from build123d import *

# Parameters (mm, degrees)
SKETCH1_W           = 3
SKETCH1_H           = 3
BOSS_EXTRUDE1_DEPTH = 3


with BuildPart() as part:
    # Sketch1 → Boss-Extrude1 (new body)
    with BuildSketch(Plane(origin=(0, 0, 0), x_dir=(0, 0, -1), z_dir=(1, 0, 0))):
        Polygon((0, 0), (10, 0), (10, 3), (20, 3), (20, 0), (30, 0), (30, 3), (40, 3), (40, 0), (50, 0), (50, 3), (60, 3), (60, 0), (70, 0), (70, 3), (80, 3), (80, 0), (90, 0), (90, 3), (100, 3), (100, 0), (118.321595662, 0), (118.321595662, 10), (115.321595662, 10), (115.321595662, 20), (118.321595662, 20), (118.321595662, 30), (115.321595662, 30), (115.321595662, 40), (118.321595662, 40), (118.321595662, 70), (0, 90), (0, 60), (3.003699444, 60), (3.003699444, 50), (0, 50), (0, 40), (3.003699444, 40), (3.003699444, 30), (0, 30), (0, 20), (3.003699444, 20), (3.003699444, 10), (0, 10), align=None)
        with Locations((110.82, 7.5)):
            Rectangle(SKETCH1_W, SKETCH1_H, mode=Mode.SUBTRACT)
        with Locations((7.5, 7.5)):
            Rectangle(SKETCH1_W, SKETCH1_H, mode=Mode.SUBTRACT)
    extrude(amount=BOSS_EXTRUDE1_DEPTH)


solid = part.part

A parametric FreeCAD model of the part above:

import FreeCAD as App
import Part
import Sketcher

V = App.Vector

doc = App.newDocument("Part")
body = doc.addObject("PartDesign::Body", "Body")

# Sketch on YZ plane
sketch1 = body.newObject("Sketcher::SketchObject", "Sketch")
sketch1.AttachmentSupport = (doc.getObject("YZ_Plane"), [""])
sketch1.MapMode = "FlatFace"
sketch1.addGeometry([
    Part.LineSegment(V(0, 0, 0), V(0, -10, 0)),  # 0
    Part.LineSegment(V(0, -10, 0), V(3, -10, 0)),  # 1
    Part.LineSegment(V(3, -10, 0), V(3, -20, 0)),  # 2
    Part.LineSegment(V(3, -20, 0), V(0, -20, 0)),  # 3
    Part.LineSegment(V(0, -20, 0), V(0, -30, 0)),  # 4
    Part.LineSegment(V(0, -30, 0), V(3, -30, 0)),  # 5
    Part.LineSegment(V(3, -30, 0), V(3, -40, 0)),  # 6
    Part.LineSegment(V(3, -40, 0), V(0, -40, 0)),  # 7
    Part.LineSegment(V(0, -40, 0), V(0, -50, 0)),  # 8
    Part.LineSegment(V(0, -50, 0), V(3, -50, 0)),  # 9
    Part.LineSegment(V(3, -50, 0), V(3, -60, 0)),  # 10
    Part.LineSegment(V(3, -60, 0), V(0, -60, 0)),  # 11
    Part.LineSegment(V(0, -60, 0), V(0, -70, 0)),  # 12
    Part.LineSegment(V(0, -70, 0), V(3, -70, 0)),  # 13
    Part.LineSegment(V(3, -70, 0), V(3, -80, 0)),  # 14
    Part.LineSegment(V(3, -80, 0), V(0, -80, 0)),  # 15
    Part.LineSegment(V(0, -80, 0), V(0, -90, 0)),  # 16
    Part.LineSegment(V(0, -90, 0), V(3, -90, 0)),  # 17
    Part.LineSegment(V(3, -90, 0), V(3, -100, 0)),  # 18
    Part.LineSegment(V(3, -100, 0), V(0, -100, 0)),  # 19
    Part.LineSegment(V(0, -100, 0), V(0, -118.3, 0)),  # 20
    Part.LineSegment(V(0, -118.3, 0), V(10, -118.3, 0)),  # 21
    Part.LineSegment(V(10, -118.3, 0), V(10, -115.3, 0)),  # 22
    Part.LineSegment(V(10, -115.3, 0), V(20, -115.3, 0)),  # 23
    Part.LineSegment(V(20, -115.3, 0), V(20, -118.3, 0)),  # 24
    Part.LineSegment(V(20, -118.3, 0), V(30, -118.3, 0)),  # 25
    Part.LineSegment(V(30, -118.3, 0), V(30, -115.3, 0)),  # 26
    Part.LineSegment(V(30, -115.3, 0), V(40, -115.3, 0)),  # 27
    Part.LineSegment(V(40, -115.3, 0), V(40, -118.3, 0)),  # 28
    Part.LineSegment(V(40, -118.3, 0), V(70, -118.3, 0)),  # 29
    Part.LineSegment(V(70, -118.3, 0), V(90, 0, 0)),  # 30
    Part.LineSegment(V(90, 0, 0), V(60, 0, 0)),  # 31
    Part.LineSegment(V(60, 0, 0), V(60, -3, 0)),  # 32
    Part.LineSegment(V(60, -3, 0), V(50, -3, 0)),  # 33
    Part.LineSegment(V(50, -3, 0), V(50, 0, 0)),  # 34
    Part.LineSegment(V(50, 0, 0), V(40, 0, 0)),  # 35
    Part.LineSegment(V(40, 0, 0), V(40, -3, 0)),  # 36
    Part.LineSegment(V(40, -3, 0), V(30, -3, 0)),  # 37
    Part.LineSegment(V(30, -3, 0), V(30, 0, 0)),  # 38
    Part.LineSegment(V(30, 0, 0), V(20, 0, 0)),  # 39
    Part.LineSegment(V(20, 0, 0), V(20, -3, 0)),  # 40
    Part.LineSegment(V(20, -3, 0), V(10, -3, 0)),  # 41
    Part.LineSegment(V(10, -3, 0), V(10, 0, 0)),  # 42
    Part.LineSegment(V(10, 0, 0), V(0, 0, 0)),  # 43
    Part.LineSegment(V(6, -9, 0), V(6, -6, 0)),  # 44
    Part.LineSegment(V(6, -6, 0), V(9, -6, 0)),  # 45
    Part.LineSegment(V(9, -6, 0), V(9, -9, 0)),  # 46
    Part.LineSegment(V(9, -9, 0), V(6, -9, 0)),  # 47
    Part.LineSegment(V(6, -112.3, 0), V(6, -109.3, 0)),  # 48
    Part.LineSegment(V(6, -109.3, 0), V(9, -109.3, 0)),  # 49
    Part.LineSegment(V(9, -109.3, 0), V(9, -112.3, 0)),  # 50
    Part.LineSegment(V(9, -112.3, 0), V(6, -112.3, 0)),  # 51
], False)
sketch1.addConstraint([
    Sketcher.Constraint("Coincident", 0, 2, 1, 1),
    Sketcher.Constraint("Coincident", 1, 2, 2, 1),
    Sketcher.Constraint("Coincident", 2, 2, 3, 1),
    Sketcher.Constraint("Coincident", 3, 2, 4, 1),
    Sketcher.Constraint("Coincident", 4, 2, 5, 1),
    Sketcher.Constraint("Coincident", 5, 2, 6, 1),
    Sketcher.Constraint("Coincident", 6, 2, 7, 1),
    Sketcher.Constraint("Coincident", 7, 2, 8, 1),
    Sketcher.Constraint("Coincident", 8, 2, 9, 1),
    Sketcher.Constraint("Coincident", 9, 2, 10, 1),
    Sketcher.Constraint("Coincident", 10, 2, 11, 1),
    Sketcher.Constraint("Coincident", 11, 2, 12, 1),
    Sketcher.Constraint("Coincident", 12, 2, 13, 1),
    Sketcher.Constraint("Coincident", 13, 2, 14, 1),
    Sketcher.Constraint("Coincident", 14, 2, 15, 1),
    Sketcher.Constraint("Coincident", 15, 2, 16, 1),
    Sketcher.Constraint("Coincident", 16, 2, 17, 1),
    Sketcher.Constraint("Coincident", 17, 2, 18, 1),
    Sketcher.Constraint("Coincident", 18, 2, 19, 1),
    Sketcher.Constraint("Coincident", 19, 2, 20, 1),
    Sketcher.Constraint("Coincident", 20, 2, 21, 1),
    Sketcher.Constraint("Coincident", 21, 2, 22, 1),
    Sketcher.Constraint("Coincident", 22, 2, 23, 1),
    Sketcher.Constraint("Coincident", 23, 2, 24, 1),
    Sketcher.Constraint("Coincident", 24, 2, 25, 1),
    Sketcher.Constraint("Coincident", 25, 2, 26, 1),
    Sketcher.Constraint("Coincident", 26, 2, 27, 1),
    Sketcher.Constraint("Coincident", 27, 2, 28, 1),
    Sketcher.Constraint("Coincident", 28, 2, 29, 1),
    Sketcher.Constraint("Coincident", 29, 2, 30, 1),
    Sketcher.Constraint("Coincident", 30, 2, 31, 1),
    Sketcher.Constraint("Coincident", 31, 2, 32, 1),
    Sketcher.Constraint("Coincident", 32, 2, 33, 1),
    Sketcher.Constraint("Coincident", 33, 2, 34, 1),
    Sketcher.Constraint("Coincident", 34, 2, 35, 1),
    Sketcher.Constraint("Coincident", 35, 2, 36, 1),
    Sketcher.Constraint("Coincident", 36, 2, 37, 1),
    Sketcher.Constraint("Coincident", 37, 2, 38, 1),
    Sketcher.Constraint("Coincident", 38, 2, 39, 1),
    Sketcher.Constraint("Coincident", 39, 2, 40, 1),
    Sketcher.Constraint("Coincident", 40, 2, 41, 1),
    Sketcher.Constraint("Coincident", 41, 2, 42, 1),
    Sketcher.Constraint("Coincident", 42, 2, 43, 1),
    Sketcher.Constraint("Coincident", 43, 2, 0, 1),
    Sketcher.Constraint("Coincident", 44, 2, 45, 1),
    Sketcher.Constraint("Coincident", 45, 2, 46, 1),
    Sketcher.Constraint("Coincident", 46, 2, 47, 1),
    Sketcher.Constraint("Coincident", 47, 2, 44, 1),
    Sketcher.Constraint("Coincident", 48, 2, 49, 1),
    Sketcher.Constraint("Coincident", 49, 2, 50, 1),
    Sketcher.Constraint("Coincident", 50, 2, 51, 1),
    Sketcher.Constraint("Coincident", 51, 2, 48, 1),
    Sketcher.Constraint("Vertical", 0),
    Sketcher.Constraint("Horizontal", 1),
    Sketcher.Constraint("Vertical", 2),
    Sketcher.Constraint("Horizontal", 3),
    Sketcher.Constraint("Vertical", 4),
    Sketcher.Constraint("Horizontal", 5),
    Sketcher.Constraint("Vertical", 6),
    Sketcher.Constraint("Horizontal", 7),
    Sketcher.Constraint("Vertical", 8),
    Sketcher.Constraint("Horizontal", 9),
    Sketcher.Constraint("Vertical", 10),
    Sketcher.Constraint("Horizontal", 11),
    Sketcher.Constraint("Vertical", 12),
    Sketcher.Constraint("Horizontal", 13),
    Sketcher.Constraint("Vertical", 14),
    Sketcher.Constraint("Horizontal", 15),
    Sketcher.Constraint("Vertical", 16),
    Sketcher.Constraint("Horizontal", 17),
    Sketcher.Constraint("Vertical", 18),
    Sketcher.Constraint("Horizontal", 19),
    Sketcher.Constraint("Vertical", 20),
    Sketcher.Constraint("Horizontal", 21),
    Sketcher.Constraint("Vertical", 22),
    Sketcher.Constraint("Horizontal", 23),
    Sketcher.Constraint("Vertical", 24),
    Sketcher.Constraint("Horizontal", 25),
    Sketcher.Constraint("Vertical", 26),
    Sketcher.Constraint("Horizontal", 27),
    Sketcher.Constraint("Vertical", 28),
    Sketcher.Constraint("Horizontal", 29),
    Sketcher.Constraint("Horizontal", 31),
    Sketcher.Constraint("Vertical", 32),
    Sketcher.Constraint("Horizontal", 33),
    Sketcher.Constraint("Vertical", 34),
    Sketcher.Constraint("Horizontal", 35),
    Sketcher.Constraint("Vertical", 36),
    Sketcher.Constraint("Horizontal", 37),
    Sketcher.Constraint("Vertical", 38),
    Sketcher.Constraint("Horizontal", 39),
    Sketcher.Constraint("Vertical", 40),
    Sketcher.Constraint("Horizontal", 41),
    Sketcher.Constraint("Vertical", 42),
    Sketcher.Constraint("Horizontal", 43),
    Sketcher.Constraint("Vertical", 44),
    Sketcher.Constraint("Horizontal", 45),
    Sketcher.Constraint("Vertical", 46),
    Sketcher.Constraint("Horizontal", 47),
    Sketcher.Constraint("Vertical", 48),
    Sketcher.Constraint("Horizontal", 49),
    Sketcher.Constraint("Vertical", 50),
    Sketcher.Constraint("Horizontal", 51),
    Sketcher.Constraint("Coincident", 43, 2, -1, 1),
    Sketcher.Constraint("PointOnObject", 3, 2, -2),
    Sketcher.Constraint("PointOnObject", 7, 2, -2),
    Sketcher.Constraint("PointOnObject", 11, 2, -2),
    Sketcher.Constraint("PointOnObject", 15, 2, -2),
    Sketcher.Constraint("PointOnObject", 19, 2, -2),
    Sketcher.Constraint("PointOnObject", 30, 2, -1),
    Sketcher.Constraint("PointOnObject", 34, 2, -1),
    Sketcher.Constraint("PointOnObject", 38, 2, -1),
    Sketcher.Constraint("Horizontal", 21, 2, 24, 2),
    Sketcher.Constraint("Horizontal", 23, 2, 26, 2),
    Sketcher.Constraint("Horizontal", 25, 2, 28, 2),
    Sketcher.Constraint("Horizontal", 33, 2, 36, 2),
    Sketcher.Constraint("Horizontal", 37, 2, 40, 2),
    Sketcher.Constraint("Vertical", 2, 2, 5, 2),
    Sketcher.Constraint("Vertical", 6, 2, 9, 2),
    Sketcher.Constraint("Vertical", 10, 2, 13, 2),
    Sketcher.Constraint("Vertical", 14, 2, 17, 2),
    Sketcher.Constraint("Vertical", 28, 2, 35, 2),
    Sketcher.Constraint("Vertical", 26, 2, 37, 2),
    Sketcher.Constraint("Vertical", 24, 2, 39, 2),
    Sketcher.Constraint("Vertical", 22, 2, 41, 2),
    Sketcher.Constraint("Vertical", 47, 2, 48, 2),
    Sketcher.Constraint("Vertical", 46, 2, 49, 2),
    Sketcher.Constraint("Equal", 21, 23),
    Sketcher.Constraint("Equal", 23, 25),
    Sketcher.Constraint("Equal", 25, 27),
    Sketcher.Constraint("Equal", 29, 31),
    Sketcher.Constraint("Equal", 27, 33),
    Sketcher.Constraint("Equal", 33, 35),
    Sketcher.Constraint("Equal", 19, 45),
    Sketcher.Constraint("Equal", 43, 0),
    Sketcher.Constraint("Equal", 0, 2),
    Sketcher.Constraint("Equal", 2, 4),
    Sketcher.Constraint("Equal", 4, 6),
    Sketcher.Constraint("Equal", 6, 8),
    Sketcher.Constraint("Equal", 8, 10),
    Sketcher.Constraint("Equal", 10, 12),
    Sketcher.Constraint("Equal", 12, 14),
    Sketcher.Constraint("Equal", 14, 16),
    Sketcher.Constraint("Equal", 16, 18),
    Sketcher.Constraint("Equal", 51, 22),
    Sketcher.Constraint("Equal", 28, 44),
    Sketcher.Constraint("Equal", 46, 48),
    Sketcher.Constraint("DistanceX", 1, 1, 1, 2, 3.0),
    Sketcher.Constraint("DistanceX", 21, 1, 21, 2, 10.0),
    Sketcher.Constraint("DistanceX", 29, 1, 29, 2, 30.0),
    Sketcher.Constraint("Distance", 30, 120.0),
    Sketcher.Constraint("DistanceX", -1, 1, 44, 2, 6.0),
    Sketcher.Constraint("DistanceY", 44, 2, -1, 1, 6.0),
    Sketcher.Constraint("DistanceY", 48, 2, -1, 1, 109.32),
    Sketcher.Constraint("DistanceY", 32, 2, 32, 1, 3.003699),
])
pad1 = body.newObject("PartDesign::Pad", "Pad")
pad1.Profile = sketch1
pad1.Length = 3

doc.recompute()
